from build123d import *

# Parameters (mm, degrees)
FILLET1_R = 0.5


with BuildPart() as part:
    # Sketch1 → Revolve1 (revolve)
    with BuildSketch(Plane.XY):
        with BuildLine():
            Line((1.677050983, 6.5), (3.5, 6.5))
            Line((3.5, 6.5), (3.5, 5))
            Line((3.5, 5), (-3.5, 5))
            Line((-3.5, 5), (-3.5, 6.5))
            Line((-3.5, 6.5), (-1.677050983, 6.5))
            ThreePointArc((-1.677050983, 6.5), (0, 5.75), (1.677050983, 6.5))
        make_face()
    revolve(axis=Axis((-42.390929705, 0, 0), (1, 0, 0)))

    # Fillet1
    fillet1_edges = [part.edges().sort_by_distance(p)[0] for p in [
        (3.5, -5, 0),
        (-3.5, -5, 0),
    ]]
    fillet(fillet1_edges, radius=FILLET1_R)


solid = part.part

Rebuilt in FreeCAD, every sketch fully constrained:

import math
import FreeCAD as App
import Part
import Sketcher

V = App.Vector
Q = App.Units.Quantity


def edges_at(feature, points):
    """Names of the edges that pass closest to the given points."""
    edges = feature.Shape.Edges
    near = lambda p: min(range(len(edges)), key=lambda i: edges[i].distToShape(Part.Vertex(*p))[0])
    return sorted({f"Edge{near(p) + 1}" for p in points})

doc = App.newDocument("Part")
params = doc.addObject("Spreadsheet::Sheet", "Params")
for row, (alias, value) in enumerate([
    ("sketch1_width", "7 mm"),
    ("sketch1_radius", "2.25 mm"),
    ("sketch1_height", "1.5 mm"),
    ("revolution_angle", "360 deg"),
    ("fillet_radius", "0.5 mm"),
], start=1):
    params.set(f"A{row}", alias)
    params.set(f"B{row}", "=" + value)
    params.setAlias(f"B{row}", alias)

body = doc.addObject("PartDesign::Body", "Body")

# Sketch on XY plane
sketch1 = doc.addObject("Sketcher::SketchObject", "Sketch")
body.addObject(sketch1)
sketch1.AttachmentSupport = (doc.XY_Plane, [""])
sketch1.MapMode = "FlatFace"
sketch1.addGeometry([
    Part.LineSegment(V(3.5, 6.5, 0), V(1.677051, 6.5, 0)),  # 0
    Part.ArcOfCircle(Part.Circle(V(0, 8, 0), V(0, 0, 1), 2.25), math.radians(-138.189685), math.radians(-41.810315)),  # 1
    Part.LineSegment(V(-1.677051, 6.5, 0), V(-3.5, 6.5, 0)),  # 2
    Part.LineSegment(V(-3.5, 6.5, 0), V(-3.5, 5, 0)),  # 3
    Part.LineSegment(V(-3.5, 5, 0), V(3.5, 5, 0)),  # 4
    Part.LineSegment(V(3.5, 5, 0), V(3.5, 6.5, 0)),  # 5
], False)
sketch1.addConstraint([
    Sketcher.Constraint("Coincident", 0, 2, 1, 2),
    Sketcher.Constraint("Coincident", 1, 1, 2, 1),
    Sketcher.Constraint("Coincident", 2, 2, 3, 1),
    Sketcher.Constraint("Coincident", 3, 2, 4, 1),
    Sketcher.Constraint("Coincident", 4, 2, 5, 1),
    Sketcher.Constraint("Coincident", 5, 2, 0, 1),
    Sketcher.Constraint("Horizontal", 0),
    Sketcher.Constraint("Horizontal", 2),
    Sketcher.Constraint("Vertical", 3),
    Sketcher.Constraint("Horizontal", 4),
    Sketcher.Constraint("Vertical", 5),
    Sketcher.Constraint("Symmetric", 0, 2, 1, 1, -2),
    Sketcher.Constraint("Equal", 0, 2),
    Sketcher.Constraint("DistanceX", 4, 1, 4, 2, Q("7 mm")),
    Sketcher.Constraint("Radius", 1, Q("2.25 mm")),
    Sketcher.Constraint("DistanceY", 3, 2, 3, 1, Q("1.5 mm")),
    Sketcher.Constraint("DistanceY", -1, 1, 1, 3, Q("8 mm")),
    Sketcher.Constraint("DistanceY", -1, 1, 3, 2, Q("5 mm")),
])
sketch1.setExpression("Constraints[13]", "Params.sketch1_width")
sketch1.setExpression("Constraints[14]", "Params.sketch1_radius")
sketch1.setExpression("Constraints[15]", "Params.sketch1_height")
revolution = doc.addObject("PartDesign::Revolution", "Revolution")
body.addObject(revolution)
revolution.Profile = sketch1
revolution.ReferenceAxis = (sketch1, ["H_Axis"])
revolution.setExpression("Angle", "Params.revolution_angle")
doc.recompute()

fillet = doc.addObject("PartDesign::Fillet", "Fillet")
body.addObject(fillet)
fillet.Base = (revolution, edges_at(revolution, [(3.5, -5, 0), (-3.5, -5, 0)]))
fillet.setExpression("Radius", "Params.fillet_radius")

doc.recompute()
